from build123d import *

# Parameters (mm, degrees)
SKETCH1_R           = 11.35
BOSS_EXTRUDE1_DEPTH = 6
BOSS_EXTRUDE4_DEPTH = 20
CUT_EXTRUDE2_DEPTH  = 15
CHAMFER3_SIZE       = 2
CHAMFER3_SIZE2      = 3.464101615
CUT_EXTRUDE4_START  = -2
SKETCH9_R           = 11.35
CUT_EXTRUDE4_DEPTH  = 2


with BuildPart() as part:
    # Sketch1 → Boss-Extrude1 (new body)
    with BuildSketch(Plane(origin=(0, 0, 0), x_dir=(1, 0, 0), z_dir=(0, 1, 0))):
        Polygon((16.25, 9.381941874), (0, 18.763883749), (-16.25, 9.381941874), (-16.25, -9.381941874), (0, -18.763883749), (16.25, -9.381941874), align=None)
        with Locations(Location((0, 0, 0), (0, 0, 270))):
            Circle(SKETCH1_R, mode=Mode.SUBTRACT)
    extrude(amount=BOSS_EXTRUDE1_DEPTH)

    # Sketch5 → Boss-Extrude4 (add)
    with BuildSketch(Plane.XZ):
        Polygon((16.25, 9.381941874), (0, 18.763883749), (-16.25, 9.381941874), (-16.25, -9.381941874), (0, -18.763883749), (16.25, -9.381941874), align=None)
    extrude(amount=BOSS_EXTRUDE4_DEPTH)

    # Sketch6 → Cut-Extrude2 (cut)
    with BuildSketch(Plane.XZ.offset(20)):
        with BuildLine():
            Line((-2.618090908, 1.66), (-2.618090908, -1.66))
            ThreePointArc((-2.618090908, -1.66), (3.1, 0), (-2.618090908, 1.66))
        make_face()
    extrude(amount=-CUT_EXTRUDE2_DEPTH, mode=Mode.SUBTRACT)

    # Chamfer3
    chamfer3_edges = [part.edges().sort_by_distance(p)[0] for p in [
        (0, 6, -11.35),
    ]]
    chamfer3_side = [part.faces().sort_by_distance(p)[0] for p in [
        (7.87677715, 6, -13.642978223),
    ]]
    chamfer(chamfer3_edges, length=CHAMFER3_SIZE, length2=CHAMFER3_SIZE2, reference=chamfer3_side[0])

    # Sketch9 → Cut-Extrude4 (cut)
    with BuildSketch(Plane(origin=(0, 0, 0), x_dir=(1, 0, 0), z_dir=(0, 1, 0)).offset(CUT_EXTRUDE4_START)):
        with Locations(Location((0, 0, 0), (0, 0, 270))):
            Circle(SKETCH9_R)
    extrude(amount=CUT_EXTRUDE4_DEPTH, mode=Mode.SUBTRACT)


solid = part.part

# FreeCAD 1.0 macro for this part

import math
import FreeCAD as App
import Part
import Sketcher
from FreeCAD import Vector
Q = App.Units.Quantity


def edges_at(feature, points):
    """Names of the edges that pass closest to the given points."""
    edges = feature.Shape.Edges
    near = lambda p: min(range(len(edges)), key=lambda i: edges[i].distToShape(Part.Vertex(*p))[0])
    return sorted({f"Edge{near(p) + 1}" for p in points})


def add_polygon(sketch, points):
    """Adds a closed chain of lines whose ends are joined by coincident constraints."""
    first, n = sketch.GeometryCount, len(points)
    for a, b in zip(points, points[1:] + points[:1]):
        sketch.addGeometry(Part.LineSegment(App.Vector(*a, 0), App.Vector(*b, 0)), False)
    for i in range(n):
        sketch.addConstraint(Sketcher.Constraint("Coincident", first + i, 2, first + (i + 1) % n, 1))

doc = App.newDocument("Part")
body = doc.addObject("PartDesign::Body", "Body")

sketch1 = body.newObject("Sketcher::SketchObject", "Sketch")
sketch1.AttachmentSupport = (doc.getObject("XZ_Plane"), [""])
sketch1.MapMode = "FlatFace"
add_polygon(sketch1, [(16, -9), (0, -19), (-16, -9), (-16, 9), (0, 19), (16, 9)])
sketch1.addGeometry(Part.Circle(Vector(0, 0, 0), Vector(0, 0, 1), 11), False)
sketch1.addConstraint(Sketcher.Constraint("Vertical", 2))
sketch1.addConstraint(Sketcher.Constraint("Vertical", 5))
sketch1.addConstraint(Sketcher.Constraint("Coincident", 6, 3, -1, 1))
sketch1.addConstraint(Sketcher.Constraint("Symmetric", 0, 2, 3, 2, -1, 1))
sketch1.addConstraint(Sketcher.Constraint("Symmetric", 1, 2, 4, 2, -1, 1))
sketch1.addConstraint(Sketcher.Constraint("PointOnObject", 0, 2, -2))
sketch1.addConstraint(Sketcher.Constraint("Parallel", 0, 3))
sketch1.addConstraint(Sketcher.Constraint("Horizontal", 2, 2, 4, 2))
sketch1.addConstraint(Sketcher.Constraint("Diameter", 6, Q("22.7 mm")))
sketch1.addConstraint(Sketcher.Constraint("Angle", 0, Q("-150 deg")))
sketch1.addConstraint(Sketcher.Constraint("DistanceX", 2, 2, 4, 2, Q("32.5 mm")))
sketch1.addConstraint(Sketcher.Constraint("DistanceY", 2, 1, 2, 2, Q("18.763884 mm")))
pad1 = body.newObject("PartDesign::Pad", "Pad")
pad1.Profile = sketch1
pad1.Length = 6
pad1.Reversed = True

sketch2 = body.newObject("Sketcher::SketchObject", "Sketch001")
sketch2.AttachmentSupport = (doc.getObject("XZ_Plane"), [""])
sketch2.MapMode = "FlatFace"
add_polygon(sketch2, [(16, 9), (0, 19), (-16, 9), (-16, -9), (0, -19), (16, -9)])
sketch2.addConstraint(Sketcher.Constraint("Vertical", 2))
sketch2.addConstraint(Sketcher.Constraint("Vertical", 5))
sketch2.addConstraint(Sketcher.Constraint("Symmetric", 0, 2, 3, 2, -1, 1))
sketch2.addConstraint(Sketcher.Constraint("Symmetric", 1, 2, 4, 2, -1, 1))
sketch2.addConstraint(Sketcher.Constraint("PointOnObject", 0, 2, -2))
sketch2.addConstraint(Sketcher.Constraint("Parallel", 0, 3))
sketch2.addConstraint(Sketcher.Constraint("Horizontal", 2, 2, 4, 2))
sketch2.addConstraint(Sketcher.Constraint("Angle", 0, Q("150 deg")))
sketch2.addConstraint(Sketcher.Constraint("DistanceX", 2, 2, 4, 2, Q("32.5 mm")))
sketch2.addConstraint(Sketcher.Constraint("DistanceY", 2, 2, 2, 1, Q("18.763884 mm")))
pad2 = body.newObject("PartDesign::Pad", "Pad001")
pad2.Profile = sketch2
pad2.Length = 20

sketch3 = body.newObject("Sketcher::SketchObject", "Sketch002")
sketch3.AttachmentSupport = (doc.getObject("XZ_Plane"), [""])
sketch3.MapMode = "FlatFace"
sketch3.AttachmentOffset = App.Placement(Vector(0, 0, 20), App.Rotation())
sketch3.addGeometry(Part.LineSegment(Vector(-2.6, 1.7, 0), Vector(-2.6, -1.7, 0)), False)
sketch3.addGeometry(Part.ArcOfCircle(Part.Circle(Vector(0, 0, 0), Vector(0, 0, 1), 3.1), math.radians(-148), math.radians(148)), False)
sketch3.addConstraint(Sketcher.Constraint("Coincident", 0, 1, 1, 2))
sketch3.addConstraint(Sketcher.Constraint("Coincident", 1, 1, 0, 2))
sketch3.addConstraint(Sketcher.Constraint("Vertical", 0))
sketch3.addConstraint(Sketcher.Constraint("Coincident", 1, 3, -1, 1))
sketch3.addConstraint(Sketcher.Constraint("Radius", 1, Q("3.1 mm")))
sketch3.addConstraint(Sketcher.Constraint("DistanceY", 0, 2, 0, 1, Q("3.32 mm")))
pocket1 = body.newObject("PartDesign::Pocket", "Pocket")
pocket1.Profile = sketch3
pocket1.Length = 15
doc.recompute()

chamfer = body.newObject("PartDesign::Chamfer", "Chamfer")
chamfer.Base = (pocket1, edges_at(pocket1, [(0, 6, -11.35)]))
chamfer.ChamferType = "Two distances"
chamfer.Size = 2
chamfer.Size2 = 3.464102

sketch4 = body.newObject("Sketcher::SketchObject", "Sketch003")
sketch4.AttachmentSupport = (doc.getObject("XZ_Plane"), [""])
sketch4.MapMode = "FlatFace"
sketch4.AttachmentOffset = App.Placement(Vector(0, 0, 2), App.Rotation())
sketch4.addGeometry(Part.Circle(Vector(0, 0, 0), Vector(0, 0, 1), 11), False)
sketch4.addConstraint(Sketcher.Constraint("Coincident", 0, 3, -1, 1))
sketch4.addConstraint(Sketcher.Constraint("Diameter", 0, Q("22.7 mm")))
pocket2 = body.newObject("PartDesign::Pocket", "Pocket001")
pocket2.Profile = sketch4
pocket2.Length = 2

doc.recompute()
